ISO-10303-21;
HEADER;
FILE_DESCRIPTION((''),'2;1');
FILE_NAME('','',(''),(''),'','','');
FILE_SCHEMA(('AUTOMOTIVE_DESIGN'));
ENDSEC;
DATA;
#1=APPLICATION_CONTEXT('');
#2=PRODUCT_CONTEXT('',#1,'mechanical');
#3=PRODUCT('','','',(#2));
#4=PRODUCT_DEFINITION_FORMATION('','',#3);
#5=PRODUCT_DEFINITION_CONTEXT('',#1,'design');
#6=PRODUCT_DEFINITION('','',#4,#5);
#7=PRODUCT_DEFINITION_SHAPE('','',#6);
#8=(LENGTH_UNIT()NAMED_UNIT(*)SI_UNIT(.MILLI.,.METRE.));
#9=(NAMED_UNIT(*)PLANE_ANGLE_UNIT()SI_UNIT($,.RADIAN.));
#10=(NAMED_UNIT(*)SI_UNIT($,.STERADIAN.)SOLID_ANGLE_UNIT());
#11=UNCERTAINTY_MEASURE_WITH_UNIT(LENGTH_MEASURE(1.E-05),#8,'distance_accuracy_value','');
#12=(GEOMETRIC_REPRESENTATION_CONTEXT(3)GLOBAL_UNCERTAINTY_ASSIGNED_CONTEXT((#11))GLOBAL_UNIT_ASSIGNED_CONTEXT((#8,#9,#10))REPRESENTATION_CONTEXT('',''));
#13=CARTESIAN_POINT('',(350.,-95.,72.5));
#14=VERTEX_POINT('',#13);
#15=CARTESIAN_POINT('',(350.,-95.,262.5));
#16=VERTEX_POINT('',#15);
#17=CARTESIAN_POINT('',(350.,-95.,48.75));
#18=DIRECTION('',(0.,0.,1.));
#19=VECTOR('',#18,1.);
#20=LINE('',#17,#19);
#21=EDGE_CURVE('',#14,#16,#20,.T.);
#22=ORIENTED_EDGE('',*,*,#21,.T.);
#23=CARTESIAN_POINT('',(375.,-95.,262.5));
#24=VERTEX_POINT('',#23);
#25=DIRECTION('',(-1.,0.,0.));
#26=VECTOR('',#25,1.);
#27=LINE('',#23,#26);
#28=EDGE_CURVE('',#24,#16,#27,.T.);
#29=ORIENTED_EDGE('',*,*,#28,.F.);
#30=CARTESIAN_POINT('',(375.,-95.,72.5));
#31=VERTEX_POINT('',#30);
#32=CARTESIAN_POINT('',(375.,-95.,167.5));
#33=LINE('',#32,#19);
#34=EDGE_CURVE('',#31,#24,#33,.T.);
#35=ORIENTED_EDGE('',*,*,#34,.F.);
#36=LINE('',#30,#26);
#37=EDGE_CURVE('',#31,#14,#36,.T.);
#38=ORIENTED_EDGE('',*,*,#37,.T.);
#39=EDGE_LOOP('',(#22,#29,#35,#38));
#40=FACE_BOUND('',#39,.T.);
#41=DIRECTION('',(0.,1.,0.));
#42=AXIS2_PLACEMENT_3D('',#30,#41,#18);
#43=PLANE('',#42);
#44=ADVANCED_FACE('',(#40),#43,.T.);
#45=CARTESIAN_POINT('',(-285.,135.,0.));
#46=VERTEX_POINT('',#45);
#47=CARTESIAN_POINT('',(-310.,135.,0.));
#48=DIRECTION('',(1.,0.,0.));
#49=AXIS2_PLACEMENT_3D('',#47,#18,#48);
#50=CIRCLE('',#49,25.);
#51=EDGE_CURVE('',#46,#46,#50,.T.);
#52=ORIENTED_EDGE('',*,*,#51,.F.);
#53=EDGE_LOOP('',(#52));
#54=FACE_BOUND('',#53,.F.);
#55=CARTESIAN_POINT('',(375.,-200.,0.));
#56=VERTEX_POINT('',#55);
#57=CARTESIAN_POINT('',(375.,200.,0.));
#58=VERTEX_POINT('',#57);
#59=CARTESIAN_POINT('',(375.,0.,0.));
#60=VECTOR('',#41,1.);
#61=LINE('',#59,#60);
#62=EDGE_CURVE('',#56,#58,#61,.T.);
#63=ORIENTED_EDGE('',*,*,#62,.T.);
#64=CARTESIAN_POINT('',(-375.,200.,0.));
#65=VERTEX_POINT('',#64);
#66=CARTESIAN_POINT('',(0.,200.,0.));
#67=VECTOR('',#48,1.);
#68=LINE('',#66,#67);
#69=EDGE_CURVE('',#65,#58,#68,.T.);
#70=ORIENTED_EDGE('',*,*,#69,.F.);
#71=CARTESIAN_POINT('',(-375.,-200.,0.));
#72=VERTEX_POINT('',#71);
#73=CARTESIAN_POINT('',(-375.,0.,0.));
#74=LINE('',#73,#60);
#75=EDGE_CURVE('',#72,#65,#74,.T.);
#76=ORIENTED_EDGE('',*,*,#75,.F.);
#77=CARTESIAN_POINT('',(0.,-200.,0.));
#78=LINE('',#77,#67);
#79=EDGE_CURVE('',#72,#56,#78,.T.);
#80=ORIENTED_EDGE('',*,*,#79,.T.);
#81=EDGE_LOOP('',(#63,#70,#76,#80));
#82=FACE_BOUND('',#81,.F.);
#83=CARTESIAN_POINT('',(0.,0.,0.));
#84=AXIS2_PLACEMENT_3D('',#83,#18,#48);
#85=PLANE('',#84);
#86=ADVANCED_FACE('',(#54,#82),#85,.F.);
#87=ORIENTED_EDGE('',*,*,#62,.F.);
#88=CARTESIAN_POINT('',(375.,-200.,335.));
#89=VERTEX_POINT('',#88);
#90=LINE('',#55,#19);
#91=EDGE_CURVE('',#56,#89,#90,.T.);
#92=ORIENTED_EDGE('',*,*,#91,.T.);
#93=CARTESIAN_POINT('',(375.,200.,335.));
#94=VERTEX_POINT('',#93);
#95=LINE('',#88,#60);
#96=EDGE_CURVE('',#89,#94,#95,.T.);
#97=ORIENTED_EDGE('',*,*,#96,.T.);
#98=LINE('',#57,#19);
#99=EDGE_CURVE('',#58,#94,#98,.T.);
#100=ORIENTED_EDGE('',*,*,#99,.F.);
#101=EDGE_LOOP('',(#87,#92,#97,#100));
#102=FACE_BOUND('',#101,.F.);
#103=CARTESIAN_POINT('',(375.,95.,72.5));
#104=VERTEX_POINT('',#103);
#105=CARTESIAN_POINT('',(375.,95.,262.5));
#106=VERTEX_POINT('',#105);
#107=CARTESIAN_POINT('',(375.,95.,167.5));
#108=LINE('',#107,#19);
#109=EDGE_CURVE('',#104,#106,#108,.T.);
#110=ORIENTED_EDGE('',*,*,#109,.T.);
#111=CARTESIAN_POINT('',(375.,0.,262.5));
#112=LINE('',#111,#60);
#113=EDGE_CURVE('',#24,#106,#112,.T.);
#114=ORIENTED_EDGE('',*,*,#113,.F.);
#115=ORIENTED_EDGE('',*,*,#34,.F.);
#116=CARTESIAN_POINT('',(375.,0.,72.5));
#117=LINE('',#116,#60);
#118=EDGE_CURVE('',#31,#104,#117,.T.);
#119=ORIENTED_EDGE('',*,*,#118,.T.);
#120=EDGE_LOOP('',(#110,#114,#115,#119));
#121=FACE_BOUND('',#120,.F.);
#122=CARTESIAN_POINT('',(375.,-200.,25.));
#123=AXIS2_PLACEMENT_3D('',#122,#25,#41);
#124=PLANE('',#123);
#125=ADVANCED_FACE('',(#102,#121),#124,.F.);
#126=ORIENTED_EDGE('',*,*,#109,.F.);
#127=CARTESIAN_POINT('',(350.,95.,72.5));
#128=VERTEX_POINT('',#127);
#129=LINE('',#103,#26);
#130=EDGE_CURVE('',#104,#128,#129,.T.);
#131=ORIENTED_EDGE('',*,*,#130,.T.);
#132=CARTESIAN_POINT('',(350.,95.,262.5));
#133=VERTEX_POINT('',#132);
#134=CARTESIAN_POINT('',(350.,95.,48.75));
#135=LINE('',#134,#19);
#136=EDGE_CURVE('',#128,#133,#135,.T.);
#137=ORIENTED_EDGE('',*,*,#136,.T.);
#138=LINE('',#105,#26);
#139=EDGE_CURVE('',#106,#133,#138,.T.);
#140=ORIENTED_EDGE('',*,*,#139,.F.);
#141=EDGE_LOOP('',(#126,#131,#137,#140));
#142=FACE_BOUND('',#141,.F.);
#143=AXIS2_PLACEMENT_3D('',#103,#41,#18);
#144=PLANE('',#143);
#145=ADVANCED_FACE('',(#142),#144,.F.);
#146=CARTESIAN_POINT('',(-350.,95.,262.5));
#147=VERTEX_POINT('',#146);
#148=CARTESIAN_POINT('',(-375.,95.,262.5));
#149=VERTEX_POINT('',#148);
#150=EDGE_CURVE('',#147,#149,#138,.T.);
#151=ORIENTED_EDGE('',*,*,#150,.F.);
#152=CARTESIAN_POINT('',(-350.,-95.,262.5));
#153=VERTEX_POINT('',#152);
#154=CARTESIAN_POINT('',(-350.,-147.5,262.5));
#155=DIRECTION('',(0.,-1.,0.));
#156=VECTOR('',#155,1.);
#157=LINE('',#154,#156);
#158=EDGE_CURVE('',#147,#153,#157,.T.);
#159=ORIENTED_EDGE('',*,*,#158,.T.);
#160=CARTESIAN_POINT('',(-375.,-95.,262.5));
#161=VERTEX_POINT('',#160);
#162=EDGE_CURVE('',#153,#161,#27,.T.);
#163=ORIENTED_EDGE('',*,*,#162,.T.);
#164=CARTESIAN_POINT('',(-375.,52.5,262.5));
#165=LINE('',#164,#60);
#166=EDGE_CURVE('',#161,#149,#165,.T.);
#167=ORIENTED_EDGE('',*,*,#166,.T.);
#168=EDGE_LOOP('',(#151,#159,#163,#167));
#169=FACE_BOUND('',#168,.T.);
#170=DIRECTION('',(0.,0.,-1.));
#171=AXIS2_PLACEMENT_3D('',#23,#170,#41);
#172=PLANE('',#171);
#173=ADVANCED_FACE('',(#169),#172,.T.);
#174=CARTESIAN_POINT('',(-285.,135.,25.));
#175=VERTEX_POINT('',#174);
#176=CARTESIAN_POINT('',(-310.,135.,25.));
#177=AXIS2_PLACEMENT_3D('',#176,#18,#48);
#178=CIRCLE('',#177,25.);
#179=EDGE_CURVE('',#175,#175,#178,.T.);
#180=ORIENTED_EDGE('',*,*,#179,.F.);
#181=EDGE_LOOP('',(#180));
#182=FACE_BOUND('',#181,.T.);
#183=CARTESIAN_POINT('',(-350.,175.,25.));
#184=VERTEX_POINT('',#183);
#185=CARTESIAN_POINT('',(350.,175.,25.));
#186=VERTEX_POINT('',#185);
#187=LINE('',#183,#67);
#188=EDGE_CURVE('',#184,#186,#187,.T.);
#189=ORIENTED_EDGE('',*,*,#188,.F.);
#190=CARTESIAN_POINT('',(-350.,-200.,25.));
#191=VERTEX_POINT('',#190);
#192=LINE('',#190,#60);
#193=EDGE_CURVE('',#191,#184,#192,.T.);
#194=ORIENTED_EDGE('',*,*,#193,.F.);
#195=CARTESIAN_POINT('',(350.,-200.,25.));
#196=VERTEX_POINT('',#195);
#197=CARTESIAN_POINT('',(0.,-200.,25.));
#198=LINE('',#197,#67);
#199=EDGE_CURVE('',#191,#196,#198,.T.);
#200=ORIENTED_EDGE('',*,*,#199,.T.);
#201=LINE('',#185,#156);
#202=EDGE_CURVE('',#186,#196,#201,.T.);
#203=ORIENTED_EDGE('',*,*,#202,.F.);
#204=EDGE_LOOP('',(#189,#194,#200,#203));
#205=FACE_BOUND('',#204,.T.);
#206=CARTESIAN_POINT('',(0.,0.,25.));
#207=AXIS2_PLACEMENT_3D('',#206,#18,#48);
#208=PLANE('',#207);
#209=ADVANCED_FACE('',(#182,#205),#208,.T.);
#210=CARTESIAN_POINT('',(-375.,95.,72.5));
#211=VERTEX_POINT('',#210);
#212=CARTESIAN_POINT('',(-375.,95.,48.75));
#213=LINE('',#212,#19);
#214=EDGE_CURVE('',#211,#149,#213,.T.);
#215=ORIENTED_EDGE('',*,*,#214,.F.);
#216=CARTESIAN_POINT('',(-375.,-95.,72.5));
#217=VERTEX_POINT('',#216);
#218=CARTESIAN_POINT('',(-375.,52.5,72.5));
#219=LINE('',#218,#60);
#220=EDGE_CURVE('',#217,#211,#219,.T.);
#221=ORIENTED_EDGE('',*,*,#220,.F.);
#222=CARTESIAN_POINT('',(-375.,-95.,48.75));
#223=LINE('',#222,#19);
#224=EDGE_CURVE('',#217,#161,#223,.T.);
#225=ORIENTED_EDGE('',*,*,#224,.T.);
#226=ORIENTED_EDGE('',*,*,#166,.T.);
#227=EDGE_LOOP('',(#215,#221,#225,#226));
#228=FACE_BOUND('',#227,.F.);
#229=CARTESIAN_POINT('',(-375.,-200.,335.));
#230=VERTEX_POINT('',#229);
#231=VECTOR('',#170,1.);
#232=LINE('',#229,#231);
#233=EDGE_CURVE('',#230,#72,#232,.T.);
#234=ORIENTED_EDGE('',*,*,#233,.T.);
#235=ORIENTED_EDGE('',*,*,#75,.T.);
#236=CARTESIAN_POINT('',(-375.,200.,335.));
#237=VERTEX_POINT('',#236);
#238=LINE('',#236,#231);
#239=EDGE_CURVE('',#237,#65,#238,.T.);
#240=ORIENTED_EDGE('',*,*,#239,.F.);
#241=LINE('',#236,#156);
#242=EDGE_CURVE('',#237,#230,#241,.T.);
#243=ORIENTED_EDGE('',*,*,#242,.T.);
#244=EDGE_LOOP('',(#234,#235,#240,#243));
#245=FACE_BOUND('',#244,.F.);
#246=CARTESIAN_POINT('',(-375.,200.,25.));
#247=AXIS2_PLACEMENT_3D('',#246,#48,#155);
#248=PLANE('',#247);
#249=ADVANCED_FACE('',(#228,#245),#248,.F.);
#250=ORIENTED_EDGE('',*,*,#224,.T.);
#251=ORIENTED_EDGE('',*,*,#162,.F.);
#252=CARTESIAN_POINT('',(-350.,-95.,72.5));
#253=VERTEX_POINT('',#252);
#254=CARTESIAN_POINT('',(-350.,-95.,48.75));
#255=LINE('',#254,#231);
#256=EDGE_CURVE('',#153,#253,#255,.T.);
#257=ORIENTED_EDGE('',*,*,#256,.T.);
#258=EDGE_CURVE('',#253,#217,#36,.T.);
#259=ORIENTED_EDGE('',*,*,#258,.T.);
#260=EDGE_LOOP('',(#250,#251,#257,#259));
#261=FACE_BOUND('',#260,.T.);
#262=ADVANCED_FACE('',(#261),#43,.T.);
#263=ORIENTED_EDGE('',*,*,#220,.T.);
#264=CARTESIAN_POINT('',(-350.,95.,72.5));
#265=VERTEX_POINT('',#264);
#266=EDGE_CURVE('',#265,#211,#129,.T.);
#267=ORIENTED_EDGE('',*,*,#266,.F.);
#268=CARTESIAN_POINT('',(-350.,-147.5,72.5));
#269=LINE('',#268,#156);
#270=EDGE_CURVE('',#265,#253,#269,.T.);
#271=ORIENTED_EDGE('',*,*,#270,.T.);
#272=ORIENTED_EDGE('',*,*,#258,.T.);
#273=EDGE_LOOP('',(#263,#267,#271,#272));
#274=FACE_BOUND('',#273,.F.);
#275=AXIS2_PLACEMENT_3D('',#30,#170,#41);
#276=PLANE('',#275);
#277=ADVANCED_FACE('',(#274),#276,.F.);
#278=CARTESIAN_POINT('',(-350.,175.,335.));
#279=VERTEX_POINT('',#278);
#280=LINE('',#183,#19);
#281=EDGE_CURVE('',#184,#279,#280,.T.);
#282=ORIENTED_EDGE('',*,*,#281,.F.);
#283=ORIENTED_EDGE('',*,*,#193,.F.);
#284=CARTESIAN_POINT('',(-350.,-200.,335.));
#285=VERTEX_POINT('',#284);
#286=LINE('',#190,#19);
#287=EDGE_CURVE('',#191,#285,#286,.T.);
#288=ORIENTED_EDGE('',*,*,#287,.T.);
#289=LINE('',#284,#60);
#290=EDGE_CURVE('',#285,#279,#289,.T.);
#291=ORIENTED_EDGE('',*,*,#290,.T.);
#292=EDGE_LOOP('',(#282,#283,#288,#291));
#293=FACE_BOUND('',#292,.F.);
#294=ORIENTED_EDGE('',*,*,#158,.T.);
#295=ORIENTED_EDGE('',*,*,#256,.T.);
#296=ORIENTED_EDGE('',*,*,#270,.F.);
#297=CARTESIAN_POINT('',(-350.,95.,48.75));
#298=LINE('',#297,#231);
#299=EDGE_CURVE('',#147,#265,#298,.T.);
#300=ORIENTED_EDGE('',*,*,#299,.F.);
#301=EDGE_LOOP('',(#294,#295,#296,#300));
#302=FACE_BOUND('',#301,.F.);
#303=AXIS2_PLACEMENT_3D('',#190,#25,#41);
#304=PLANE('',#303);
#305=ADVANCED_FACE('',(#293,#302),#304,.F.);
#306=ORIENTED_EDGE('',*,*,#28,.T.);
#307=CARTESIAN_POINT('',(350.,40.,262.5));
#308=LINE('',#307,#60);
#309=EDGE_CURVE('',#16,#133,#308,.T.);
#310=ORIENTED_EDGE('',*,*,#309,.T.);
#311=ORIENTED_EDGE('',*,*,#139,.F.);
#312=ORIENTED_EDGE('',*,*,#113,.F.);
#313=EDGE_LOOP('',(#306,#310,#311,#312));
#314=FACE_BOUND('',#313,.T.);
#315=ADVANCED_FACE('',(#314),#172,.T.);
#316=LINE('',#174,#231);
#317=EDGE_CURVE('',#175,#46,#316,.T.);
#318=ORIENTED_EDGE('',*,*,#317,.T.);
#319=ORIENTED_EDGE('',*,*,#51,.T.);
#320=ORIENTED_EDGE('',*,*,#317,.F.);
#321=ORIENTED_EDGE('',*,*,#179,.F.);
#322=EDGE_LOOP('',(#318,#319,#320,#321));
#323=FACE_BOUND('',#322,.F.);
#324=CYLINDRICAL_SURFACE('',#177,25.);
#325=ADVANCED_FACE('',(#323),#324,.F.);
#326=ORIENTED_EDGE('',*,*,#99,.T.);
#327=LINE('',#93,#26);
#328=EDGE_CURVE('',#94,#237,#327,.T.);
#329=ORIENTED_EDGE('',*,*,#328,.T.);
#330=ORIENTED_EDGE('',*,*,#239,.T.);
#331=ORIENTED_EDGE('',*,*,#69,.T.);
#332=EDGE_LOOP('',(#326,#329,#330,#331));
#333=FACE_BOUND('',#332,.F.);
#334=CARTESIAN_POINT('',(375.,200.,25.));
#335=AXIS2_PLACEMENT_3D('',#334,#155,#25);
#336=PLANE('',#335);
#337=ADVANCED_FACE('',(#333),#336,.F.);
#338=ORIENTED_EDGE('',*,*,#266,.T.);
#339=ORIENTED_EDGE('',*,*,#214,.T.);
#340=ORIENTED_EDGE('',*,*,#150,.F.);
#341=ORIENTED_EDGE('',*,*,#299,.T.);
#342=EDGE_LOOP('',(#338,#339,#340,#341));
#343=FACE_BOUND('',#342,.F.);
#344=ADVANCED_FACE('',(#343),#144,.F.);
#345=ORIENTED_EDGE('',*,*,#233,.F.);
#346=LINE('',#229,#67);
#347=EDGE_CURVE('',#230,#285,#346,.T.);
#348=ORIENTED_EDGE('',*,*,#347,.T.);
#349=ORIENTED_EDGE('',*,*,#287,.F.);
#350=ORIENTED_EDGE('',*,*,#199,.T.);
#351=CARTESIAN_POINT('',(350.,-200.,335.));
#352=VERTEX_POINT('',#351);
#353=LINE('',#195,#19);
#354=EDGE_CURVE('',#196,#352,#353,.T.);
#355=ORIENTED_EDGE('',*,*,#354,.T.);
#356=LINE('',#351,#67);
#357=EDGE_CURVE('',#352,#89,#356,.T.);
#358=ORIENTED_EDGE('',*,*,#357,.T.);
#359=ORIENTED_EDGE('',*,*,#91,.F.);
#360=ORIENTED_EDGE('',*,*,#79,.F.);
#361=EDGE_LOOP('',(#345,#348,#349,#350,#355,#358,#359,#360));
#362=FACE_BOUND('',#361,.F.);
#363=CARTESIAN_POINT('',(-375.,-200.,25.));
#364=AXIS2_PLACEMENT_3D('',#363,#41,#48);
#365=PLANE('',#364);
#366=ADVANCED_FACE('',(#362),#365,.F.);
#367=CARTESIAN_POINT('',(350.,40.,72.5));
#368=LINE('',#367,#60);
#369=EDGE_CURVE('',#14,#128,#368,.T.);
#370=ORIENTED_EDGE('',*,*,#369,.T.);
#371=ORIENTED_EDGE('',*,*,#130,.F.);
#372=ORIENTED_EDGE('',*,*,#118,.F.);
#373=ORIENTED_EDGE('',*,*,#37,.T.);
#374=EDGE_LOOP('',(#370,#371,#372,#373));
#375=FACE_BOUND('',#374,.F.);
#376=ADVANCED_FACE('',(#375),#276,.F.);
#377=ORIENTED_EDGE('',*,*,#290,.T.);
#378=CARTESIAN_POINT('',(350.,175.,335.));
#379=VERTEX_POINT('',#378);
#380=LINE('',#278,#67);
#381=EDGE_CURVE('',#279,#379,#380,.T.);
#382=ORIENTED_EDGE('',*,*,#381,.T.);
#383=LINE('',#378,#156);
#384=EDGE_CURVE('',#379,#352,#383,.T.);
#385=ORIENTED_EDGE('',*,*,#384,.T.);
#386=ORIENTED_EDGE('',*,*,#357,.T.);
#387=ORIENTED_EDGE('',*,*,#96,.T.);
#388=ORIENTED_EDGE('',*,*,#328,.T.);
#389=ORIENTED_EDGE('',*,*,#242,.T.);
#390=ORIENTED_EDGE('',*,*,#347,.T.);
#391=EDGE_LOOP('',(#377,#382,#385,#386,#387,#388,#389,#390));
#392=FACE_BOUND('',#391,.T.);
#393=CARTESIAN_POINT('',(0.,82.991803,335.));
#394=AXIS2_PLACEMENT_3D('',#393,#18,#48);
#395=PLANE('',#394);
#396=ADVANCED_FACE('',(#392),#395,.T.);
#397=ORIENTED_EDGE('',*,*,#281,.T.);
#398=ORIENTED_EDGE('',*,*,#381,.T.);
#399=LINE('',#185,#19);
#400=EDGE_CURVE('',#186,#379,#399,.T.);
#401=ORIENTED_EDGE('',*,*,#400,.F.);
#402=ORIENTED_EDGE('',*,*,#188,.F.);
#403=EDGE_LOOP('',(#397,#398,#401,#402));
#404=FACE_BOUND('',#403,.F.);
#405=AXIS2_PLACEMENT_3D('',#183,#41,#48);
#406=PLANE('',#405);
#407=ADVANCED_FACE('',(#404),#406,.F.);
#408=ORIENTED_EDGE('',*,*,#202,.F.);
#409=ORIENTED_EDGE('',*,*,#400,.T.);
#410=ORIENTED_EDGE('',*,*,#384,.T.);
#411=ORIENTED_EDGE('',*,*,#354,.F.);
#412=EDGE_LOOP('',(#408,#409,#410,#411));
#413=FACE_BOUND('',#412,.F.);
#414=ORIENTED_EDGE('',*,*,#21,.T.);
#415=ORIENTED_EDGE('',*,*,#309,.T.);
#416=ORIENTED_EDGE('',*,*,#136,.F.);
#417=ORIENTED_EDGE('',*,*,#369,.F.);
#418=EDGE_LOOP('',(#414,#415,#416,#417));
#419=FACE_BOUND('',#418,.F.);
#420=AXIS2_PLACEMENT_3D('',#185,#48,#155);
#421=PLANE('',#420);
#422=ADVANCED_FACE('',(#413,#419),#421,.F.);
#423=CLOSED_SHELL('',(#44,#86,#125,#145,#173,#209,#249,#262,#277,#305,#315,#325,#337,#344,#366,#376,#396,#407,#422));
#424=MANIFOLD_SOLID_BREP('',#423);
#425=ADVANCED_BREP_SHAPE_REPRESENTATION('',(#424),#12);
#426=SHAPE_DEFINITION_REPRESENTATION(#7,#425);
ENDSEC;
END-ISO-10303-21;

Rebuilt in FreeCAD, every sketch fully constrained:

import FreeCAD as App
import Part
import Sketcher

V = App.Vector


def add_polygon(sketch, points):
    """Adds a closed chain of lines whose ends are joined by coincident constraints."""
    first, n = sketch.GeometryCount, len(points)
    for a, b in zip(points, points[1:] + points[:1]):
        sketch.addGeometry(Part.LineSegment(App.Vector(*a, 0), App.Vector(*b, 0)), False)
    for i in range(n):
        sketch.addConstraint(Sketcher.Constraint("Coincident", first + i, 2, first + (i + 1) % n, 1))

doc = App.newDocument("Part")
body = doc.addObject("PartDesign::Body", "Body")

# Sketch on XY plane
sketch1 = doc.addObject("Sketcher::SketchObject", "Sketch")
body.addObject(sketch1)
sketch1.AttachmentSupport = (doc.XY_Plane, [""])
sketch1.MapMode = "FlatFace"
add_polygon(sketch1, [(-375, 200), (-375, -200), (375, -200), (375, 200)])  # lines 0-3
sketch1.addConstraint([
    Sketcher.Constraint("Vertical", 0),
    Sketcher.Constraint("Horizontal", 1),
    Sketcher.Constraint("Vertical", 2),
    Sketcher.Constraint("Horizontal", 3),
    Sketcher.Constraint("Symmetric", 0, 2, 2, 2, -1, 1),
    Sketcher.Constraint("DistanceX", 1, 1, 1, 2, 750.0),
    Sketcher.Constraint("DistanceY", 0, 2, 0, 1, 400.0),
])
pad1 = doc.addObject("PartDesign::Pad", "Pad")
body.addObject(pad1)
pad1.Profile = sketch1
pad1.Length = 25

# Sketch on XY plane
sketch2 = doc.addObject("Sketcher::SketchObject", "Sketch001")
body.addObject(sketch2)
sketch2.AttachmentSupport = (doc.XY_Plane, [""])
sketch2.MapMode = "FlatFace"
sketch2.AttachmentOffset = App.Placement(V(0, 0, 25), App.Rotation())
add_polygon(sketch2, [(-350, -200), (-350, 175), (350, 175), (350, -200), (375, -200), (375, 200), (-375, 200), (-375, -200)])  # lines 0-7
sketch2.addConstraint([
    Sketcher.Constraint("Vertical", 0),
    Sketcher.Constraint("Horizontal", 1),
    Sketcher.Constraint("Vertical", 2),
    Sketcher.Constraint("Horizontal", 3),
    Sketcher.Constraint("Vertical", 4),
    Sketcher.Constraint("Horizontal", 5),
    Sketcher.Constraint("Vertical", 6),
    Sketcher.Constraint("Horizontal", 7),
    Sketcher.Constraint("Symmetric", 3, 2, 5, 2, -1, 1),
    Sketcher.Constraint("Symmetric", 2, 2, 7, 2, -2),
    Sketcher.Constraint("DistanceX", 1, 1, 1, 2, 700.0),
    Sketcher.Constraint("DistanceX", 3, 1, 3, 2, 25.0),
    Sketcher.Constraint("DistanceY", 0, 1, 0, 2, 375.0),
    Sketcher.Constraint("DistanceY", 4, 1, 4, 2, 400.0),
])
pad2 = doc.addObject("PartDesign::Pad", "Pad001")
body.addObject(pad2)
pad2.Profile = sketch2
pad2.Length = 310

# Sketch on YZ plane
sketch3 = doc.addObject("Sketcher::SketchObject", "Sketch002")
body.addObject(sketch3)
sketch3.AttachmentSupport = (doc.YZ_Plane, [""])
sketch3.MapMode = "FlatFace"
sketch3.AttachmentOffset = App.Placement(V(0, 0, 375), App.Rotation())
add_polygon(sketch3, [(-95, 262), (-95, 72), (95, 72), (95, 262)])  # lines 0-3
sketch3.addConstraint([
    Sketcher.Constraint("Vertical", 0),
    Sketcher.Constraint("Horizontal", 1),
    Sketcher.Constraint("Vertical", 2),
    Sketcher.Constraint("Horizontal", 3),
    Sketcher.Constraint("Equal", 3, 0),
    Sketcher.Constraint("DistanceX", 1, 1, 1, 2, 190.0),
    Sketcher.Constraint("DistanceX", 0, 2, -1, 1, 95.0),
    Sketcher.Constraint("DistanceY", -1, 1, 0, 2, 72.5),
])
pocket1 = doc.addObject("PartDesign::Pocket", "Pocket")
body.addObject(pocket1)
pocket1.Profile = sketch3
pocket1.Type = "ThroughAll"

# Sketch on XY plane
sketch4 = doc.addObject("Sketcher::SketchObject", "Sketch003")
body.addObject(sketch4)
sketch4.AttachmentSupport = (doc.XY_Plane, [""])
sketch4.MapMode = "FlatFace"
sketch4.AttachmentOffset = App.Placement(V(0, 0, 25), App.Rotation())
sketch4.addGeometry(Part.Circle(V(-310, 135, 0), V(0, 0, 1), 25), False)
sketch4.addConstraint([
    Sketcher.Constraint("Diameter", 0, 50.0),
    Sketcher.Constraint("DistanceX", 0, 3, -1, 1, 310.0),
    Sketcher.Constraint("DistanceY", -1, 1, 0, 3, 135.0),
])
pocket2 = doc.addObject("PartDesign::Pocket", "Pocket001")
body.addObject(pocket2)
pocket2.Profile = sketch4
pocket2.Type = "ThroughAll"

doc.recompute()
